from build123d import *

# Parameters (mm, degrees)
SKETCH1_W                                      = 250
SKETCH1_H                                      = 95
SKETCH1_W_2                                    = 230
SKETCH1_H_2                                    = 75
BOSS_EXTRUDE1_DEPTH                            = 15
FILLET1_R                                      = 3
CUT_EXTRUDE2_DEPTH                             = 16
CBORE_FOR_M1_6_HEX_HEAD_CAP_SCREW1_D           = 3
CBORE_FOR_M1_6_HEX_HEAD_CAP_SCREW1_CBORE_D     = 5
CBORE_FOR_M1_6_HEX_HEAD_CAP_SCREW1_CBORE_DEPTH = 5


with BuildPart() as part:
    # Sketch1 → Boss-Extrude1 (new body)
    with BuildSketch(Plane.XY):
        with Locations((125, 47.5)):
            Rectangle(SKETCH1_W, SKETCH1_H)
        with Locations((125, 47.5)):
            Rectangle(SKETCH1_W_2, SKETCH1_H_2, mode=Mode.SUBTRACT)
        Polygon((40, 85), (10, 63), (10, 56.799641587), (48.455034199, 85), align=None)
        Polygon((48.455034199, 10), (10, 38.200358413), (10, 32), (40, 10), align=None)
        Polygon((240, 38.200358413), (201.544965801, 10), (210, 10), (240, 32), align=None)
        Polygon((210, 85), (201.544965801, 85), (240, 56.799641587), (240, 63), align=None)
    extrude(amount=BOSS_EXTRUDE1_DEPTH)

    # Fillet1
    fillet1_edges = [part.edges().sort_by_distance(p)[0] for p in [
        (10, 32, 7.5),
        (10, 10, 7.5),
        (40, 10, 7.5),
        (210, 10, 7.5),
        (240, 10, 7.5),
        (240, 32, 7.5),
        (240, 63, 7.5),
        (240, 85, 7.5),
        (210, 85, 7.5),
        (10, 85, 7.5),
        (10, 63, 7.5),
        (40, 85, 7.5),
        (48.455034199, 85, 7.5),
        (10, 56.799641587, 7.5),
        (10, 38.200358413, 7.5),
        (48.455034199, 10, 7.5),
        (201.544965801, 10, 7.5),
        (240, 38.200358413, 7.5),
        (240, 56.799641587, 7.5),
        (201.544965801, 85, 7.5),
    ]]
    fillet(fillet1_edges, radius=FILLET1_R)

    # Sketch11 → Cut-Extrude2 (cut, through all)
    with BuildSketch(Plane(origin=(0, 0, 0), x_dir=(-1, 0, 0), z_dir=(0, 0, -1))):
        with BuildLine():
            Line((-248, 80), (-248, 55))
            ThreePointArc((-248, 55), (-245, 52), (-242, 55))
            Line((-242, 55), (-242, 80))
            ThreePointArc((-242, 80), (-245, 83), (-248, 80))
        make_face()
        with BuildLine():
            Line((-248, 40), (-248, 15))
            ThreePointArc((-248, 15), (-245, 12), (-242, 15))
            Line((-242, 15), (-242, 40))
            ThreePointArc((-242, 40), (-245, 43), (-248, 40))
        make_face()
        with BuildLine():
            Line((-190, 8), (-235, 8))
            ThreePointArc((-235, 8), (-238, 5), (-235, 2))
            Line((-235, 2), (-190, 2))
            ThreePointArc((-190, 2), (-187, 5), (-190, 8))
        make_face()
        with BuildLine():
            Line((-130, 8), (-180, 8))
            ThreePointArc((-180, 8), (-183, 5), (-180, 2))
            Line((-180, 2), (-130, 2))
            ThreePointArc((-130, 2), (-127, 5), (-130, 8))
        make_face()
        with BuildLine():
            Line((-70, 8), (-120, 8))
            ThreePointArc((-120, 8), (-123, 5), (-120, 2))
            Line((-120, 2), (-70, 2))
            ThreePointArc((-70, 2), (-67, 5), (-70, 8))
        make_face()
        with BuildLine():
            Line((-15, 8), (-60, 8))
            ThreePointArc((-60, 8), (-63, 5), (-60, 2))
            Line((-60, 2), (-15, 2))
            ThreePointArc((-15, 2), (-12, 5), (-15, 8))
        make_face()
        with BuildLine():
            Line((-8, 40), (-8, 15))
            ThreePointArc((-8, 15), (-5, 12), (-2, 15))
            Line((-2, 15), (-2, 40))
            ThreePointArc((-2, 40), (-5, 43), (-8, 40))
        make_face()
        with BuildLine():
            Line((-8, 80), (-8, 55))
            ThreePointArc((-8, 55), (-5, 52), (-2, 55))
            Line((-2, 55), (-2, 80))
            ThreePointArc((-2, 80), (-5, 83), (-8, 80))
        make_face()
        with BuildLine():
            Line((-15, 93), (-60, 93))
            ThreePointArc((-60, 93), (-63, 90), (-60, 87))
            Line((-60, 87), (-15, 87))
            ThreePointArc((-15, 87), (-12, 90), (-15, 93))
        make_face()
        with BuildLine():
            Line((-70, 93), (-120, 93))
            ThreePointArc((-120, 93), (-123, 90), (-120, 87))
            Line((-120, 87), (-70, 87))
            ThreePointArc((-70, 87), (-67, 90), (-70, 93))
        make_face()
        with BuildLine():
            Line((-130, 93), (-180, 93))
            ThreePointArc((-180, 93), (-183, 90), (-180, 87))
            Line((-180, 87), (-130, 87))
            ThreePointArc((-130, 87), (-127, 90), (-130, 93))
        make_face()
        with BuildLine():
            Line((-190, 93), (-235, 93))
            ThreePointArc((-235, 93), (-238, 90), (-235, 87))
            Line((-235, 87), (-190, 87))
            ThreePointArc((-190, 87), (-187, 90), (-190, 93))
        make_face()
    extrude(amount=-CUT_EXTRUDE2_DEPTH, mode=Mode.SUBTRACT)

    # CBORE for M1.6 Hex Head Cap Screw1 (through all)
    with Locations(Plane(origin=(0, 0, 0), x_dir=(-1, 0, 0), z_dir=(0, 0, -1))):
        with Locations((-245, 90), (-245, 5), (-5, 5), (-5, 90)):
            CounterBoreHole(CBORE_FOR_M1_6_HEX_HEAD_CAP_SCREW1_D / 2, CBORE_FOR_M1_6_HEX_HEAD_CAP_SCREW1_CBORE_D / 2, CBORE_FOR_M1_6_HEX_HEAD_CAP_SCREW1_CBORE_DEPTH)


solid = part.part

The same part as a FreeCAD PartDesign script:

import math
import FreeCAD as App
import Part
import Sketcher
from FreeCAD import Vector


def edges_at(feature, points):
    """Names of the edges that pass closest to the given points."""
    edges = feature.Shape.Edges
    near = lambda p: min(range(len(edges)), key=lambda i: edges[i].distToShape(Part.Vertex(*p))[0])
    return sorted({f"Edge{near(p) + 1}" for p in points})

doc = App.newDocument("Part")
params = doc.addObject("Spreadsheet::Sheet", "Params")
for row, (alias, value) in enumerate([
    ("sketch1_width", "250 mm"),
    ("sketch1_width2", "30 mm"),
    ("sketch1_height", "95 mm"),
    ("sketch1_height2", "22 mm"),
    ("pad1_length", "15 mm"),
    ("fillet_radius", "3 mm"),
    ("sketch2_radius", "3 mm"),
    ("sketch2_width", "45 mm"),
    ("sketch2_width2", "50 mm"),
    ("sketch2_height", "25 mm"),
    ("sketch3_diameter", "3 mm"),
    ("hole_diameter", "3 mm"),
    ("hole_cbore_diameter", "5 mm"),
    ("hole_cbore_depth", "5 mm"),
], start=1):
    params.set(f"A{row}", alias)
    params.set(f"B{row}", "=" + value)
    params.setAlias(f"B{row}", alias)

body = doc.addObject("PartDesign::Body", "Body")

sketch1 = body.newObject("Sketcher::SketchObject", "Sketch")
sketch1.AttachmentSupport = (doc.getObject("XY_Plane"), [""])
sketch1.MapMode = "FlatFace"
sketch1.addGeometry(Part.LineSegment(Vector(0, 95, 0), Vector(0, 0, 0)), False)
sketch1.addGeometry(Part.LineSegment(Vector(0, 0, 0), Vector(250, 0, 0)), False)
sketch1.addGeometry(Part.LineSegment(Vector(250, 0, 0), Vector(250, 95, 0)), False)
sketch1.addGeometry(Part.LineSegment(Vector(250, 95, 0), Vector(0, 95, 0)), False)
sketch1.addGeometry(Part.LineSegment(Vector(40, 10, 0), Vector(10, 10, 0)), False)
sketch1.addGeometry(Part.LineSegment(Vector(10, 10, 0), Vector(10, 32, 0)), False)
sketch1.addGeometry(Part.LineSegment(Vector(10, 32, 0), Vector(40, 10, 0)), False)
sketch1.addGeometry(Part.LineSegment(Vector(202, 10, 0), Vector(48, 10, 0)), False)
sketch1.addGeometry(Part.LineSegment(Vector(48, 10, 0), Vector(10, 38, 0)), False)
sketch1.addGeometry(Part.LineSegment(Vector(10, 38, 0), Vector(10, 57, 0)), False)
sketch1.addGeometry(Part.LineSegment(Vector(10, 57, 0), Vector(48, 85, 0)), False)
sketch1.addGeometry(Part.LineSegment(Vector(48, 85, 0), Vector(202, 85, 0)), False)
sketch1.addGeometry(Part.LineSegment(Vector(202, 85, 0), Vector(240, 57, 0)), False)
sketch1.addGeometry(Part.LineSegment(Vector(240, 57, 0), Vector(240, 38, 0)), False)
sketch1.addGeometry(Part.LineSegment(Vector(240, 38, 0), Vector(202, 10, 0)), False)
sketch1.addGeometry(Part.LineSegment(Vector(210, 85, 0), Vector(240, 85, 0)), False)
sketch1.addGeometry(Part.LineSegment(Vector(240, 85, 0), Vector(240, 63, 0)), False)
sketch1.addGeometry(Part.LineSegment(Vector(240, 63, 0), Vector(210, 85, 0)), False)
sketch1.addGeometry(Part.LineSegment(Vector(240, 10, 0), Vector(210, 10, 0)), False)
sketch1.addGeometry(Part.LineSegment(Vector(210, 10, 0), Vector(240, 32, 0)), False)
sketch1.addGeometry(Part.LineSegment(Vector(240, 32, 0), Vector(240, 10, 0)), False)
sketch1.addGeometry(Part.LineSegment(Vector(10, 85, 0), Vector(40, 85, 0)), False)
sketch1.addGeometry(Part.LineSegment(Vector(40, 85, 0), Vector(10, 63, 0)), False)
sketch1.addGeometry(Part.LineSegment(Vector(10, 63, 0), Vector(10, 85, 0)), False)
sketch1.addConstraint(Sketcher.Constraint("Coincident", 0, 2, 1, 1))
sketch1.addConstraint(Sketcher.Constraint("Coincident", 1, 2, 2, 1))
sketch1.addConstraint(Sketcher.Constraint("Coincident", 2, 2, 3, 1))
sketch1.addConstraint(Sketcher.Constraint("Coincident", 3, 2, 0, 1))
sketch1.addConstraint(Sketcher.Constraint("Coincident", 4, 2, 5, 1))
sketch1.addConstraint(Sketcher.Constraint("Coincident", 5, 2, 6, 1))
sketch1.addConstraint(Sketcher.Constraint("Coincident", 6, 2, 4, 1))
sketch1.addConstraint(Sketcher.Constraint("Coincident", 7, 2, 8, 1))
sketch1.addConstraint(Sketcher.Constraint("Coincident", 8, 2, 9, 1))
sketch1.addConstraint(Sketcher.Constraint("Coincident", 9, 2, 10, 1))
sketch1.addConstraint(Sketcher.Constraint("Coincident", 10, 2, 11, 1))
sketch1.addConstraint(Sketcher.Constraint("Coincident", 11, 2, 12, 1))
sketch1.addConstraint(Sketcher.Constraint("Coincident", 12, 2, 13, 1))
sketch1.addConstraint(Sketcher.Constraint("Coincident", 13, 2, 14, 1))
sketch1.addConstraint(Sketcher.Constraint("Coincident", 14, 2, 7, 1))
sketch1.addConstraint(Sketcher.Constraint("Coincident", 15, 2, 16, 1))
sketch1.addConstraint(Sketcher.Constraint("Coincident", 16, 2, 17, 1))
sketch1.addConstraint(Sketcher.Constraint("Coincident", 17, 2, 15, 1))
sketch1.addConstraint(Sketcher.Constraint("Coincident", 18, 2, 19, 1))
sketch1.addConstraint(Sketcher.Constraint("Coincident", 19, 2, 20, 1))
sketch1.addConstraint(Sketcher.Constraint("Coincident", 20, 2, 18, 1))
sketch1.addConstraint(Sketcher.Constraint("Coincident", 21, 2, 22, 1))
sketch1.addConstraint(Sketcher.Constraint("Coincident", 22, 2, 23, 1))
sketch1.addConstraint(Sketcher.Constraint("Coincident", 23, 2, 21, 1))
sketch1.addConstraint(Sketcher.Constraint("Vertical", 0))
sketch1.addConstraint(Sketcher.Constraint("Horizontal", 1))
sketch1.addConstraint(Sketcher.Constraint("Vertical", 2))
sketch1.addConstraint(Sketcher.Constraint("Horizontal", 3))
sketch1.addConstraint(Sketcher.Constraint("Horizontal", 4))
sketch1.addConstraint(Sketcher.Constraint("Vertical", 5))
sketch1.addConstraint(Sketcher.Constraint("Horizontal", 7))
sketch1.addConstraint(Sketcher.Constraint("Vertical", 9))
sketch1.addConstraint(Sketcher.Constraint("Horizontal", 11))
sketch1.addConstraint(Sketcher.Constraint("Vertical", 13))
sketch1.addConstraint(Sketcher.Constraint("Horizontal", 15))
sketch1.addConstraint(Sketcher.Constraint("Vertical", 16))
sketch1.addConstraint(Sketcher.Constraint("Horizontal", 18))
sketch1.addConstraint(Sketcher.Constraint("Vertical", 20))
sketch1.addConstraint(Sketcher.Constraint("Horizontal", 21))
sketch1.addConstraint(Sketcher.Constraint("Vertical", 23))
sketch1.addConstraint(Sketcher.Constraint("Coincident", 0, 2, -1, 1))
sketch1.addConstraint(Sketcher.Constraint("Parallel", 6, 8))
sketch1.addConstraint(Sketcher.Constraint("Parallel", 8, 12))
sketch1.addConstraint(Sketcher.Constraint("Parallel", 10, 14))
sketch1.addConstraint(Sketcher.Constraint("Parallel", 12, 17))
sketch1.addConstraint(Sketcher.Constraint("Parallel", 14, 19))
sketch1.addConstraint(Sketcher.Constraint("Parallel", 19, 22))
sketch1.addConstraint(Sketcher.Constraint("Horizontal", 6, 2, 7, 2))
sketch1.addConstraint(Sketcher.Constraint("Horizontal", 9, 2, 12, 2))
sketch1.addConstraint(Sketcher.Constraint("Horizontal", 8, 2, 13, 2))
sketch1.addConstraint(Sketcher.Constraint("Horizontal", 11, 2, 15, 2))
sketch1.addConstraint(Sketcher.Constraint("Horizontal", 14, 2, 18, 2))
sketch1.addConstraint(Sketcher.Constraint("Horizontal", 5, 2, 19, 2))
sketch1.addConstraint(Sketcher.Constraint("Horizontal", 17, 2, 21, 2))
sketch1.addConstraint(Sketcher.Constraint("Horizontal", 16, 2, 22, 2))
sketch1.addConstraint(Sketcher.Constraint("Vertical", 5, 2, 8, 2))
sketch1.addConstraint(Sketcher.Constraint("Vertical", 7, 2, 10, 2))
sketch1.addConstraint(Sketcher.Constraint("Vertical", 11, 2, 14, 2))
sketch1.addConstraint(Sketcher.Constraint("Vertical", 13, 2, 15, 2))
sketch1.addConstraint(Sketcher.Constraint("Vertical", 17, 2, 18, 2))
sketch1.addConstraint(Sketcher.Constraint("Vertical", 16, 2, 19, 2))
sketch1.addConstraint(Sketcher.Constraint("Vertical", 6, 2, 21, 2))
sketch1.addConstraint(Sketcher.Constraint("DistanceX", 1, 1, 1, 2, 250.0))
sketch1.addConstraint(Sketcher.Constraint("DistanceX", 4, 2, 4, 1, 30.0))
sketch1.addConstraint(Sketcher.Constraint("DistanceY", 0, 2, 0, 1, 95.0))
sketch1.addConstraint(Sketcher.Constraint("DistanceY", 5, 1, 5, 2, 22.0))
sketch1.addConstraint(Sketcher.Constraint("DistanceX", -1, 1, 4, 2, 10.0))
sketch1.addConstraint(Sketcher.Constraint("DistanceY", -1, 1, 4, 2, 10.0))
sketch1.addConstraint(Sketcher.Constraint("DistanceY", -1, 1, 10, 2, 85.0))
sketch1.addConstraint(Sketcher.Constraint("DistanceX", -1, 1, 12, 2, 240.0))
sketch1.addConstraint(Sketcher.Constraint("Distance", 8, 47.686999))
sketch1.setExpression("Constraints[62]", "Params.sketch1_width")
sketch1.setExpression("Constraints[63]", "Params.sketch1_width2")
sketch1.setExpression("Constraints[64]", "Params.sketch1_height")
sketch1.setExpression("Constraints[65]", "Params.sketch1_height2")
pad1 = body.newObject("PartDesign::Pad", "Pad")
pad1.Profile = sketch1
pad1.setExpression("Length", "Params.pad1_length")
doc.recompute()

fillet = body.newObject("PartDesign::Fillet", "Fillet")
fillet.Base = (pad1, edges_at(pad1, [
    (10, 32, 7.5),
    (10, 10, 7.5),
    (40, 10, 7.5),
    (210, 10, 7.5),
    (240, 10, 7.5),
    (240, 32, 7.5),
    (240, 63, 7.5),
    (240, 85, 7.5),
    (210, 85, 7.5),
    (10, 85, 7.5),
    (10, 63, 7.5),
    (40, 85, 7.5),
    (48.455, 85, 7.5),
    (10, 56.8, 7.5),
    (10, 38.2, 7.5),
    (48.455, 10, 7.5),
    (201.545, 10, 7.5),
    (240, 38.2, 7.5),
    (240, 56.8, 7.5),
    (201.545, 85, 7.5),
]))
fillet.setExpression("Radius", "Params.fillet_radius")

sketch2 = body.newObject("Sketcher::SketchObject", "Sketch001")
sketch2.AttachmentSupport = (doc.getObject("XY_Plane"), [""])
sketch2.MapMode = "FlatFace"
sketch2.addGeometry(Part.LineSegment(Vector(248, 80, 0), Vector(248, 55, 0)), False)
sketch2.addGeometry(Part.ArcOfCircle(Part.Circle(Vector(245, 55, 0), Vector(0, 0, 1), 3), math.radians(180), math.radians(360)), False)
sketch2.addGeometry(Part.LineSegment(Vector(242, 55, 0), Vector(242, 80, 0)), False)
sketch2.addGeometry(Part.ArcOfCircle(Part.Circle(Vector(245, 80, 0), Vector(0, 0, 1), 3), math.radians(0), math.radians(180)), False)
sketch2.addGeometry(Part.LineSegment(Vector(248, 40, 0), Vector(248, 15, 0)), False)
sketch2.addGeometry(Part.ArcOfCircle(Part.Circle(Vector(245, 15, 0), Vector(0, 0, 1), 3), math.radians(180), math.radians(360)), False)
sketch2.addGeometry(Part.LineSegment(Vector(242, 15, 0), Vector(242, 40, 0)), False)
sketch2.addGeometry(Part.ArcOfCircle(Part.Circle(Vector(245, 40, 0), Vector(0, 0, 1), 3), math.radians(0), math.radians(180)), False)
sketch2.addGeometry(Part.LineSegment(Vector(190, 8, 0), Vector(235, 8, 0)), False)
sketch2.addGeometry(Part.ArcOfCircle(Part.Circle(Vector(235, 5, 0), Vector(0, 0, 1), 3), math.radians(-90), math.radians(90)), False)
sketch2.addGeometry(Part.LineSegment(Vector(235, 2, 0), Vector(190, 2, 0)), False)
sketch2.addGeometry(Part.ArcOfCircle(Part.Circle(Vector(190, 5, 0), Vector(0, 0, 1), 3), math.radians(90), math.radians(270)), False)
sketch2.addGeometry(Part.LineSegment(Vector(130, 8, 0), Vector(180, 8, 0)), False)
sketch2.addGeometry(Part.ArcOfCircle(Part.Circle(Vector(180, 5, 0), Vector(0, 0, 1), 3), math.radians(-90), math.radians(90)), False)
sketch2.addGeometry(Part.LineSegment(Vector(180, 2, 0), Vector(130, 2, 0)), False)
sketch2.addGeometry(Part.ArcOfCircle(Part.Circle(Vector(130, 5, 0), Vector(0, 0, 1), 3), math.radians(90), math.radians(270)), False)
sketch2.addGeometry(Part.LineSegment(Vector(70, 8, 0), Vector(120, 8, 0)), False)
sketch2.addGeometry(Part.ArcOfCircle(Part.Circle(Vector(120, 5, 0), Vector(0, 0, 1), 3), math.radians(-90), math.radians(90)), False)
sketch2.addGeometry(Part.LineSegment(Vector(120, 2, 0), Vector(70, 2, 0)), False)
sketch2.addGeometry(Part.ArcOfCircle(Part.Circle(Vector(70, 5, 0), Vector(0, 0, 1), 3), math.radians(90), math.radians(270)), False)
sketch2.addGeometry(Part.LineSegment(Vector(15, 8, 0), Vector(60, 8, 0)), False)
sketch2.addGeometry(Part.ArcOfCircle(Part.Circle(Vector(60, 5, 0), Vector(0, 0, 1), 3), math.radians(-90), math.radians(90)), False)
sketch2.addGeometry(Part.LineSegment(Vector(60, 2, 0), Vector(15, 2, 0)), False)
sketch2.addGeometry(Part.ArcOfCircle(Part.Circle(Vector(15, 5, 0), Vector(0, 0, 1), 3), math.radians(90), math.radians(270)), False)
sketch2.addGeometry(Part.LineSegment(Vector(8, 40, 0), Vector(8, 15, 0)), False)
sketch2.addGeometry(Part.ArcOfCircle(Part.Circle(Vector(5, 15, 0), Vector(0, 0, 1), 3), math.radians(180), math.radians(360)), False)
sketch2.addGeometry(Part.LineSegment(Vector(2, 15, 0), Vector(2, 40, 0)), False)
sketch2.addGeometry(Part.ArcOfCircle(Part.Circle(Vector(5, 40, 0), Vector(0, 0, 1), 3), math.radians(0), math.radians(180)), False)
sketch2.addGeometry(Part.LineSegment(Vector(8, 80, 0), Vector(8, 55, 0)), False)
sketch2.addGeometry(Part.ArcOfCircle(Part.Circle(Vector(5, 55, 0), Vector(0, 0, 1), 3), math.radians(180), math.radians(360)), False)
sketch2.addGeometry(Part.LineSegment(Vector(2, 55, 0), Vector(2, 80, 0)), False)
sketch2.addGeometry(Part.ArcOfCircle(Part.Circle(Vector(5, 80, 0), Vector(0, 0, 1), 3), math.radians(0), math.radians(180)), False)
sketch2.addGeometry(Part.LineSegment(Vector(15, 93, 0), Vector(60, 93, 0)), False)
sketch2.addGeometry(Part.ArcOfCircle(Part.Circle(Vector(60, 90, 0), Vector(0, 0, 1), 3), math.radians(-90), math.radians(90)), False)
sketch2.addGeometry(Part.LineSegment(Vector(60, 87, 0), Vector(15, 87, 0)), False)
sketch2.addGeometry(Part.ArcOfCircle(Part.Circle(Vector(15, 90, 0), Vector(0, 0, 1), 3), math.radians(90), math.radians(270)), False)
sketch2.addGeometry(Part.LineSegment(Vector(70, 93, 0), Vector(120, 93, 0)), False)
sketch2.addGeometry(Part.ArcOfCircle(Part.Circle(Vector(120, 90, 0), Vector(0, 0, 1), 3), math.radians(-90), math.radians(90)), False)
sketch2.addGeometry(Part.LineSegment(Vector(120, 87, 0), Vector(70, 87, 0)), False)
sketch2.addGeometry(Part.ArcOfCircle(Part.Circle(Vector(70, 90, 0), Vector(0, 0, 1), 3), math.radians(90), math.radians(270)), False)
sketch2.addGeometry(Part.LineSegment(Vector(130, 93, 0), Vector(180, 93, 0)), False)
sketch2.addGeometry(Part.ArcOfCircle(Part.Circle(Vector(180, 90, 0), Vector(0, 0, 1), 3), math.radians(-90), math.radians(90)), False)
sketch2.addGeometry(Part.LineSegment(Vector(180, 87, 0), Vector(130, 87, 0)), False)
sketch2.addGeometry(Part.ArcOfCircle(Part.Circle(Vector(130, 90, 0), Vector(0, 0, 1), 3), math.radians(90), math.radians(270)), False)
sketch2.addGeometry(Part.LineSegment(Vector(190, 93, 0), Vector(235, 93, 0)), False)
sketch2.addGeometry(Part.ArcOfCircle(Part.Circle(Vector(235, 90, 0), Vector(0, 0, 1), 3), math.radians(-90), math.radians(90)), False)
sketch2.addGeometry(Part.LineSegment(Vector(235, 87, 0), Vector(190, 87, 0)), False)
sketch2.addGeometry(Part.ArcOfCircle(Part.Circle(Vector(190, 90, 0), Vector(0, 0, 1), 3), math.radians(90), math.radians(270)), False)
sketch2.addConstraint(Sketcher.Constraint("Tangent", 0, 2, 1, 2))
sketch2.addConstraint(Sketcher.Constraint("Tangent", 1, 1, 2, 1))
sketch2.addConstraint(Sketcher.Constraint("Tangent", 2, 2, 3, 2))
sketch2.addConstraint(Sketcher.Constraint("Tangent", 3, 1, 0, 1))
sketch2.addConstraint(Sketcher.Constraint("Tangent", 4, 2, 5, 2))
sketch2.addConstraint(Sketcher.Constraint("Tangent", 5, 1, 6, 1))
sketch2.addConstraint(Sketcher.Constraint("Tangent", 6, 2, 7, 2))
sketch2.addConstraint(Sketcher.Constraint("Tangent", 7, 1, 4, 1))
sketch2.addConstraint(Sketcher.Constraint("Tangent", 8, 2, 9, 2))
sketch2.addConstraint(Sketcher.Constraint("Tangent", 9, 1, 10, 1))
sketch2.addConstraint(Sketcher.Constraint("Tangent", 10, 2, 11, 2))
sketch2.addConstraint(Sketcher.Constraint("Tangent", 11, 1, 8, 1))
sketch2.addConstraint(Sketcher.Constraint("Tangent", 12, 2, 13, 2))
sketch2.addConstraint(Sketcher.Constraint("Tangent", 13, 1, 14, 1))
sketch2.addConstraint(Sketcher.Constraint("Tangent", 14, 2, 15, 2))
sketch2.addConstraint(Sketcher.Constraint("Tangent", 15, 1, 12, 1))
sketch2.addConstraint(Sketcher.Constraint("Tangent", 16, 2, 17, 2))
sketch2.addConstraint(Sketcher.Constraint("Tangent", 17, 1, 18, 1))
sketch2.addConstraint(Sketcher.Constraint("Tangent", 18, 2, 19, 2))
sketch2.addConstraint(Sketcher.Constraint("Tangent", 19, 1, 16, 1))
sketch2.addConstraint(Sketcher.Constraint("Tangent", 20, 2, 21, 2))
sketch2.addConstraint(Sketcher.Constraint("Tangent", 21, 1, 22, 1))
sketch2.addConstraint(Sketcher.Constraint("Tangent", 22, 2, 23, 2))
sketch2.addConstraint(Sketcher.Constraint("Tangent", 23, 1, 20, 1))
sketch2.addConstraint(Sketcher.Constraint("Tangent", 24, 2, 25, 2))
sketch2.addConstraint(Sketcher.Constraint("Tangent", 25, 1, 26, 1))
sketch2.addConstraint(Sketcher.Constraint("Tangent", 26, 2, 27, 2))
sketch2.addConstraint(Sketcher.Constraint("Tangent", 27, 1, 24, 1))
sketch2.addConstraint(Sketcher.Constraint("Tangent", 28, 2, 29, 2))
sketch2.addConstraint(Sketcher.Constraint("Tangent", 29, 1, 30, 1))
sketch2.addConstraint(Sketcher.Constraint("Tangent", 30, 2, 31, 2))
sketch2.addConstraint(Sketcher.Constraint("Tangent", 31, 1, 28, 1))
sketch2.addConstraint(Sketcher.Constraint("Tangent", 32, 2, 33, 2))
sketch2.addConstraint(Sketcher.Constraint("Tangent", 33, 1, 34, 1))
sketch2.addConstraint(Sketcher.Constraint("Tangent", 34, 2, 35, 2))
sketch2.addConstraint(Sketcher.Constraint("Tangent", 35, 1, 32, 1))
sketch2.addConstraint(Sketcher.Constraint("Tangent", 36, 2, 37, 2))
sketch2.addConstraint(Sketcher.Constraint("Tangent", 37, 1, 38, 1))
sketch2.addConstraint(Sketcher.Constraint("Tangent", 38, 2, 39, 2))
sketch2.addConstraint(Sketcher.Constraint("Tangent", 39, 1, 36, 1))
sketch2.addConstraint(Sketcher.Constraint("Tangent", 40, 2, 41, 2))
sketch2.addConstraint(Sketcher.Constraint("Tangent", 41, 1, 42, 1))
sketch2.addConstraint(Sketcher.Constraint("Tangent", 42, 2, 43, 2))
sketch2.addConstraint(Sketcher.Constraint("Tangent", 43, 1, 40, 1))
sketch2.addConstraint(Sketcher.Constraint("Tangent", 44, 2, 45, 2))
sketch2.addConstraint(Sketcher.Constraint("Tangent", 45, 1, 46, 1))
sketch2.addConstraint(Sketcher.Constraint("Tangent", 46, 2, 47, 2))
sketch2.addConstraint(Sketcher.Constraint("Tangent", 47, 1, 44, 1))
sketch2.addConstraint(Sketcher.Constraint("Vertical", 0))
sketch2.addConstraint(Sketcher.Constraint("Vertical", 2))
sketch2.addConstraint(Sketcher.Constraint("Vertical", 4))
sketch2.addConstraint(Sketcher.Constraint("Vertical", 6))
sketch2.addConstraint(Sketcher.Constraint("Horizontal", 8))
sketch2.addConstraint(Sketcher.Constraint("Horizontal", 10))
sketch2.addConstraint(Sketcher.Constraint("Horizontal", 12))
sketch2.addConstraint(Sketcher.Constraint("Horizontal", 14))
sketch2.addConstraint(Sketcher.Constraint("Horizontal", 16))
sketch2.addConstraint(Sketcher.Constraint("Horizontal", 18))
sketch2.addConstraint(Sketcher.Constraint("Horizontal", 20))
sketch2.addConstraint(Sketcher.Constraint("Horizontal", 22))
sketch2.addConstraint(Sketcher.Constraint("Vertical", 24))
sketch2.addConstraint(Sketcher.Constraint("Vertical", 26))
sketch2.addConstraint(Sketcher.Constraint("Vertical", 28))
sketch2.addConstraint(Sketcher.Constraint("Vertical", 30))
sketch2.addConstraint(Sketcher.Constraint("Horizontal", 32))
sketch2.addConstraint(Sketcher.Constraint("Horizontal", 34))
sketch2.addConstraint(Sketcher.Constraint("Horizontal", 36))
sketch2.addConstraint(Sketcher.Constraint("Horizontal", 38))
sketch2.addConstraint(Sketcher.Constraint("Horizontal", 40))
sketch2.addConstraint(Sketcher.Constraint("Horizontal", 42))
sketch2.addConstraint(Sketcher.Constraint("Horizontal", 44))
sketch2.addConstraint(Sketcher.Constraint("Horizontal", 46))
sketch2.addConstraint(Sketcher.Constraint("Equal", 3, 5))
sketch2.addConstraint(Sketcher.Constraint("Equal", 7, 9))
sketch2.addConstraint(Sketcher.Constraint("Equal", 11, 13))
sketch2.addConstraint(Sketcher.Constraint("Equal", 15, 17))
sketch2.addConstraint(Sketcher.Constraint("Equal", 19, 21))
sketch2.addConstraint(Sketcher.Constraint("Equal", 23, 25))
sketch2.addConstraint(Sketcher.Constraint("Equal", 27, 29))
sketch2.addConstraint(Sketcher.Constraint("Equal", 31, 33))
sketch2.addConstraint(Sketcher.Constraint("Equal", 35, 37))
sketch2.addConstraint(Sketcher.Constraint("Equal", 39, 41))
sketch2.addConstraint(Sketcher.Constraint("Equal", 43, 45))
sketch2.addConstraint(Sketcher.Constraint("Horizontal", 11, 3, 13, 3))
sketch2.addConstraint(Sketcher.Constraint("Horizontal", 15, 3, 17, 3))
sketch2.addConstraint(Sketcher.Constraint("Horizontal", 19, 3, 21, 3))
sketch2.addConstraint(Sketcher.Constraint("Horizontal", 5, 3, 25, 3))
sketch2.addConstraint(Sketcher.Constraint("Horizontal", 7, 3, 27, 3))
sketch2.addConstraint(Sketcher.Constraint("Horizontal", 1, 3, 29, 3))
sketch2.addConstraint(Sketcher.Constraint("Horizontal", 3, 3, 31, 3))
sketch2.addConstraint(Sketcher.Constraint("Horizontal", 35, 3, 37, 3))
sketch2.addConstraint(Sketcher.Constraint("Horizontal", 39, 3, 41, 3))
sketch2.addConstraint(Sketcher.Constraint("Horizontal", 43, 3, 45, 3))
sketch2.addConstraint(Sketcher.Constraint("Vertical", 3, 3, 5, 3))
sketch2.addConstraint(Sketcher.Constraint("Vertical", 27, 3, 29, 3))
sketch2.addConstraint(Sketcher.Constraint("Vertical", 21, 3, 33, 3))
sketch2.addConstraint(Sketcher.Constraint("Vertical", 23, 3, 35, 3))
sketch2.addConstraint(Sketcher.Constraint("Vertical", 17, 3, 37, 3))
sketch2.addConstraint(Sketcher.Constraint("Vertical", 19, 3, 39, 3))
sketch2.addConstraint(Sketcher.Constraint("Vertical", 13, 3, 41, 3))
sketch2.addConstraint(Sketcher.Constraint("Vertical", 15, 3, 43, 3))
sketch2.addConstraint(Sketcher.Constraint("Vertical", 9, 3, 45, 3))
sketch2.addConstraint(Sketcher.Constraint("Vertical", 11, 3, 47, 3))
sketch2.addConstraint(Sketcher.Constraint("Equal", 14, 16))
sketch2.addConstraint(Sketcher.Constraint("Equal", 10, 20))
sketch2.addConstraint(Sketcher.Constraint("Equal", 2, 4))
sketch2.addConstraint(Sketcher.Constraint("Radius", 1, 3.0))
sketch2.addConstraint(Sketcher.Constraint("DistanceX", 8, 1, 8, 2, 45.0))
sketch2.addConstraint(Sketcher.Constraint("DistanceX", 12, 1, 12, 2, 50.0))
sketch2.addConstraint(Sketcher.Constraint("DistanceY", 0, 2, 0, 1, 25.0))
sketch2.addConstraint(Sketcher.Constraint("DistanceX", -1, 1, 1, 3, 245.0))
sketch2.addConstraint(Sketcher.Constraint("DistanceY", -1, 1, 1, 3, 55.0))
sketch2.addConstraint(Sketcher.Constraint("DistanceY", -1, 1, 5, 3, 15.0))
sketch2.addConstraint(Sketcher.Constraint("DistanceX", -1, 1, 9, 3, 235.0))
sketch2.addConstraint(Sketcher.Constraint("DistanceY", -1, 1, 9, 3, 5.0))
sketch2.addConstraint(Sketcher.Constraint("DistanceX", -1, 1, 13, 3, 180.0))
sketch2.addConstraint(Sketcher.Constraint("DistanceX", -1, 1, 17, 3, 120.0))
sketch2.addConstraint(Sketcher.Constraint("DistanceX", -1, 1, 21, 3, 60.0))
sketch2.addConstraint(Sketcher.Constraint("DistanceX", -1, 1, 25, 3, 5.0))
sketch2.addConstraint(Sketcher.Constraint("DistanceY", -1, 1, 33, 3, 90.0))
sketch2.setExpression("Constraints[106]", "Params.sketch2_radius")
sketch2.setExpression("Constraints[107]", "Params.sketch2_width")
sketch2.setExpression("Constraints[108]", "Params.sketch2_width2")
sketch2.setExpression("Constraints[109]", "Params.sketch2_height")
pocket1 = body.newObject("PartDesign::Pocket", "Pocket")
pocket1.Profile = sketch2
pocket1.Type = "ThroughAll"
pocket1.Reversed = True

sketch3 = body.newObject("Sketcher::SketchObject", "Sketch002")
sketch3.AttachmentSupport = (doc.getObject("XY_Plane"), [""])
sketch3.MapMode = "FlatFace"
sketch3.addGeometry(Part.Circle(Vector(245, 90, 0), Vector(0, 0, 1), 1.5), False)
sketch3.addGeometry(Part.Circle(Vector(245, 5, 0), Vector(0, 0, 1), 1.5), False)
sketch3.addGeometry(Part.Circle(Vector(5, 5, 0), Vector(0, 0, 1), 1.5), False)
sketch3.addGeometry(Part.Circle(Vector(5, 90, 0), Vector(0, 0, 1), 1.5), False)
sketch3.addConstraint(Sketcher.Constraint("Equal", 0, 1))
sketch3.addConstraint(Sketcher.Constraint("Equal", 1, 2))
sketch3.addConstraint(Sketcher.Constraint("Equal", 2, 3))
sketch3.addConstraint(Sketcher.Constraint("Horizontal", 1, 3, 2, 3))
sketch3.addConstraint(Sketcher.Constraint("Horizontal", 0, 3, 3, 3))
sketch3.addConstraint(Sketcher.Constraint("Vertical", 0, 3, 1, 3))
sketch3.addConstraint(Sketcher.Constraint("Vertical", 2, 3, 3, 3))
sketch3.addConstraint(Sketcher.Constraint("Diameter", 0, 3.0))
sketch3.addConstraint(Sketcher.Constraint("DistanceX", -1, 1, 0, 3, 245.0))
sketch3.addConstraint(Sketcher.Constraint("DistanceY", -1, 1, 0, 3, 90.0))
sketch3.addConstraint(Sketcher.Constraint("DistanceY", -1, 1, 1, 3, 5.0))
sketch3.addConstraint(Sketcher.Constraint("DistanceX", -1, 1, 2, 3, 5.0))
sketch3.setExpression("Constraints[7]", "Params.sketch3_diameter")
doc.recompute()
hole = body.newObject("PartDesign::Hole", "Hole")
hole.Profile = sketch3
hole.ThreadType = "None"
hole.setExpression("Diameter", "Params.hole_diameter")
hole.DepthType = "ThroughAll"
hole.HoleCutType = "Counterbore"
hole.setExpression("HoleCutDiameter", "Params.hole_cbore_diameter")
hole.setExpression("HoleCutDepth", "Params.hole_cbore_depth")
hole.Reversed = True

doc.recompute()
